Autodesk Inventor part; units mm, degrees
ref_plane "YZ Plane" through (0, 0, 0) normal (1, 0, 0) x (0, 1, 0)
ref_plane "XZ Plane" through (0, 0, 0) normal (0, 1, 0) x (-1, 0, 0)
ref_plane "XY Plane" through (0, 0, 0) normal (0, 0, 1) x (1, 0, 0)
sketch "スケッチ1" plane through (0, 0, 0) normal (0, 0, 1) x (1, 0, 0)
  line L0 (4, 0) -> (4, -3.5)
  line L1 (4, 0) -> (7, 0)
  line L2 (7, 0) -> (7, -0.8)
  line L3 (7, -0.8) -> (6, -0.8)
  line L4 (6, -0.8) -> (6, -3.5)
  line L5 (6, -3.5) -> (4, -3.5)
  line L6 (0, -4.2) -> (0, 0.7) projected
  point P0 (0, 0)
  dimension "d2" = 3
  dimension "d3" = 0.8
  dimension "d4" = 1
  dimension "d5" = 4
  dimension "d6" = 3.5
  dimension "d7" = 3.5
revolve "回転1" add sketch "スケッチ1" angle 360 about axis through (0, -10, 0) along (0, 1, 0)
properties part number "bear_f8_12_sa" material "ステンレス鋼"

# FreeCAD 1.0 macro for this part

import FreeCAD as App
import Part
import Sketcher
from FreeCAD import Vector
Q = App.Units.Quantity

doc = App.newDocument("Part")
params = doc.addObject("Spreadsheet::Sheet", "Params")
for row, (alias, value) in enumerate([
    ("sketch1_width", "3 mm"),
    ("sketch1_width2", "1 mm"),
    ("sketch1_height", "3.5 mm"),
    ("sketch1_height2", "0.8 mm"),
    ("revolution_angle", "360 deg"),
], start=1):
    params.set(f"A{row}", alias)
    params.set(f"B{row}", "=" + value)
    params.setAlias(f"B{row}", alias)

body = doc.addObject("PartDesign::Body", "Body")

# Sketch on XY plane
sketch1 = body.newObject("Sketcher::SketchObject", "Sketch")
sketch1.AttachmentSupport = (doc.getObject("XY_Plane"), [""])
sketch1.MapMode = "FlatFace"
sketch1.addGeometry(Part.LineSegment(Vector(7, 0, 0), Vector(4, 0, 0)), False)
sketch1.addGeometry(Part.LineSegment(Vector(4, 0, 0), Vector(4, -3.5, 0)), False)
sketch1.addGeometry(Part.LineSegment(Vector(4, -3.5, 0), Vector(6, -3.5, 0)), False)
sketch1.addGeometry(Part.LineSegment(Vector(6, -3.5, 0), Vector(6, -0.8, 0)), False)
sketch1.addGeometry(Part.LineSegment(Vector(6, -0.8, 0), Vector(7, -0.8, 0)), False)
sketch1.addGeometry(Part.LineSegment(Vector(7, -0.8, 0), Vector(7, 0, 0)), False)
sketch1.addConstraint(Sketcher.Constraint("Coincident", 0, 2, 1, 1))
sketch1.addConstraint(Sketcher.Constraint("Coincident", 1, 2, 2, 1))
sketch1.addConstraint(Sketcher.Constraint("Coincident", 2, 2, 3, 1))
sketch1.addConstraint(Sketcher.Constraint("Coincident", 3, 2, 4, 1))
sketch1.addConstraint(Sketcher.Constraint("Coincident", 4, 2, 5, 1))
sketch1.addConstraint(Sketcher.Constraint("Coincident", 5, 2, 0, 1))
sketch1.addConstraint(Sketcher.Constraint("Horizontal", 0))
sketch1.addConstraint(Sketcher.Constraint("Vertical", 1))
sketch1.addConstraint(Sketcher.Constraint("Horizontal", 2))
sketch1.addConstraint(Sketcher.Constraint("Vertical", 3))
sketch1.addConstraint(Sketcher.Constraint("Horizontal", 4))
sketch1.addConstraint(Sketcher.Constraint("Vertical", 5))
sketch1.addConstraint(Sketcher.Constraint("PointOnObject", 0, 2, -1))
sketch1.addConstraint(Sketcher.Constraint("DistanceX", 0, 2, 0, 1, Q("3 mm")))
sketch1.addConstraint(Sketcher.Constraint("DistanceX", 4, 1, 4, 2, Q("1 mm")))
sketch1.addConstraint(Sketcher.Constraint("DistanceY", 1, 2, 1, 1, Q("3.5 mm")))
sketch1.addConstraint(Sketcher.Constraint("DistanceY", 5, 1, 5, 2, Q("0.8 mm")))
sketch1.addConstraint(Sketcher.Constraint("DistanceX", -1, 1, 0, 2, Q("4 mm")))
sketch1.setExpression("Constraints[13]", "Params.sketch1_width")
sketch1.setExpression("Constraints[14]", "Params.sketch1_width2")
sketch1.setExpression("Constraints[15]", "Params.sketch1_height")
sketch1.setExpression("Constraints[16]", "Params.sketch1_height2")
revolution = body.newObject("PartDesign::Revolution", "Revolution")
revolution.Profile = sketch1
revolution.ReferenceAxis = (sketch1, ["V_Axis"])
revolution.setExpression("Angle", "Params.revolution_angle")

doc.recompute()
